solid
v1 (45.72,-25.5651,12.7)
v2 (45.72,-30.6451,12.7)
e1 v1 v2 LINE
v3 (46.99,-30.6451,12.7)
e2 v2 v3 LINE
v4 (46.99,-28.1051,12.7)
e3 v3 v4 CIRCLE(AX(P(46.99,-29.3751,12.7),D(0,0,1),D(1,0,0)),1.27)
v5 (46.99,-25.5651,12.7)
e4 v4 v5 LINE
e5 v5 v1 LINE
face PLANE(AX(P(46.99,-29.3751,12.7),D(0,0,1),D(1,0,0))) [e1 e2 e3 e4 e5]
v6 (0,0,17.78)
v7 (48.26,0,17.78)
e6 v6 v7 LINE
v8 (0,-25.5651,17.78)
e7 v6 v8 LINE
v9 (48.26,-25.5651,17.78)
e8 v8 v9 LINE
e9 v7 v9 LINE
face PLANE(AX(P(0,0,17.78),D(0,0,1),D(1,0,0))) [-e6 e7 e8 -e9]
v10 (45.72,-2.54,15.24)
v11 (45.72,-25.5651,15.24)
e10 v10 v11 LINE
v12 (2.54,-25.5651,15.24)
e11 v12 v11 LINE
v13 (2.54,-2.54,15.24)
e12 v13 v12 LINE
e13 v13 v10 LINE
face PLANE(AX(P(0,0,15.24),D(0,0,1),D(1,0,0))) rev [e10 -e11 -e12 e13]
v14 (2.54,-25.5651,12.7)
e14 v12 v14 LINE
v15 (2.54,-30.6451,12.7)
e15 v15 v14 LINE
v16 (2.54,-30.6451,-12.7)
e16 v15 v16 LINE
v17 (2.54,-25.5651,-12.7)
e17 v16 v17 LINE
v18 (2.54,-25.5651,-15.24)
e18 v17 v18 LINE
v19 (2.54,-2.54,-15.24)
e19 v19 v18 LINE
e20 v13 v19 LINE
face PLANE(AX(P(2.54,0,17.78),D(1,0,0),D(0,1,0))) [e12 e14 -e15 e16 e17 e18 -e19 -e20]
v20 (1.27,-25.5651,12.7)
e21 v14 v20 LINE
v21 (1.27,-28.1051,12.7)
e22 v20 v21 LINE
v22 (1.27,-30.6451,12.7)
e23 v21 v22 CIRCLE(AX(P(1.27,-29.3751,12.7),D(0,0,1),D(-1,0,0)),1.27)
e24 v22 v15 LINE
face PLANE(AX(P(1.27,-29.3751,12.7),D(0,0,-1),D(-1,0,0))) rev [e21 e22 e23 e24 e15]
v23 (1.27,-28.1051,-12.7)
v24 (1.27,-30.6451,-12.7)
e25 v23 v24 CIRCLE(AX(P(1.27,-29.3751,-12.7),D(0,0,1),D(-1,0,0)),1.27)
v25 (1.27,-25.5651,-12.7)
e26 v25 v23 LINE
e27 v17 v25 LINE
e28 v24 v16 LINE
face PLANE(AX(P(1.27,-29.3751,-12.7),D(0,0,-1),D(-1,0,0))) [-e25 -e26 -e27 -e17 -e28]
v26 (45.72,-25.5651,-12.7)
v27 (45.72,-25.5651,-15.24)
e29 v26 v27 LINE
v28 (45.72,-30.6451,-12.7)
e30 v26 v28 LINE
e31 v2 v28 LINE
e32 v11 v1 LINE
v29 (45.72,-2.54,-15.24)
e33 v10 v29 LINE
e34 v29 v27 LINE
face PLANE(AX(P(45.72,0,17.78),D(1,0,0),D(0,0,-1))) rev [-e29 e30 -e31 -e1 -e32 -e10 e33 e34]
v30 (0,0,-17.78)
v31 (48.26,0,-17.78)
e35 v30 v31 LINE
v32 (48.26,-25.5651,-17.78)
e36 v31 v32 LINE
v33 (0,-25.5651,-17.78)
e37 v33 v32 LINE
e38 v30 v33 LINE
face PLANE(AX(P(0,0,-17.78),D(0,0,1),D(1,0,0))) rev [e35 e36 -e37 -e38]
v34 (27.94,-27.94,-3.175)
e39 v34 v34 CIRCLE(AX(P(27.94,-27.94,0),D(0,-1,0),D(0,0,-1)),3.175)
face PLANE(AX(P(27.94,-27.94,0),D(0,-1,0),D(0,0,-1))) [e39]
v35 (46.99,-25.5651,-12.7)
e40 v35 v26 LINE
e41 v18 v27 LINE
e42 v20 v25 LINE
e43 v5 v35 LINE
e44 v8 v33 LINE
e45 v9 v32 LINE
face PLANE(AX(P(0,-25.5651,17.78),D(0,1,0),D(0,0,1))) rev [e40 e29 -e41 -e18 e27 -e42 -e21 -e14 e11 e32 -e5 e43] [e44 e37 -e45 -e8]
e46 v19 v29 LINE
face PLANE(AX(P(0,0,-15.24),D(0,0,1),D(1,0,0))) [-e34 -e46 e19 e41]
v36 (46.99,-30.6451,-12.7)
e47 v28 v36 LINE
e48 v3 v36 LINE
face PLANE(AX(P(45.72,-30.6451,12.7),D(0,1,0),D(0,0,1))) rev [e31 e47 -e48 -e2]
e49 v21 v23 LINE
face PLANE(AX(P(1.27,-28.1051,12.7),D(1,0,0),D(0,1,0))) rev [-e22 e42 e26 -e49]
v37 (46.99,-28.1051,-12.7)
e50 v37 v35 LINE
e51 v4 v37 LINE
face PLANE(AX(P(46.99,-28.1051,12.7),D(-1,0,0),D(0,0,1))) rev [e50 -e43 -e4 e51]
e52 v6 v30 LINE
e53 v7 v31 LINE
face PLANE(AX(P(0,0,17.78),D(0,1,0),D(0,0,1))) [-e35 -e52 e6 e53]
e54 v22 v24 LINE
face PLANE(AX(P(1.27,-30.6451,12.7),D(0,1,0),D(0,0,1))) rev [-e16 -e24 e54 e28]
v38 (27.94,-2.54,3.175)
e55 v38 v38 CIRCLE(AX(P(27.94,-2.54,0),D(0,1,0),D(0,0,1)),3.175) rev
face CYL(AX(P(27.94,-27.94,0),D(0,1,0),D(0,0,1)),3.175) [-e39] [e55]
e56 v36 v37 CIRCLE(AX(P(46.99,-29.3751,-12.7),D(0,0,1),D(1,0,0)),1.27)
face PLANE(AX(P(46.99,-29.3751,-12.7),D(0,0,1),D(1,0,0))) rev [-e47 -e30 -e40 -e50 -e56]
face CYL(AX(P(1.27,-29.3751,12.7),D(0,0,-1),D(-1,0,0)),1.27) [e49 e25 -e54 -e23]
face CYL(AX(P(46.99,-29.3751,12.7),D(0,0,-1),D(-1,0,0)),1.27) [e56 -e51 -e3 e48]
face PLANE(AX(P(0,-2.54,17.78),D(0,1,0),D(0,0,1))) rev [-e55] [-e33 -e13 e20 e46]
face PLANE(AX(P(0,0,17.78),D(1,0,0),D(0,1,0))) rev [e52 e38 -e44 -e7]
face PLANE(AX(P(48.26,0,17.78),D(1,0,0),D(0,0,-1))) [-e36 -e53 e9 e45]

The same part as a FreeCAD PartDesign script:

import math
import FreeCAD as App
import Part
import Sketcher
from FreeCAD import Vector
Q = App.Units.Quantity


def faces_at(feature, points):
    """Names of the faces that lie closest to the given points."""
    faces = feature.Shape.Faces
    near = lambda p: min(range(len(faces)), key=lambda i: faces[i].distToShape(Part.Vertex(*p))[0])
    return sorted({f"Face{near(p) + 1}" for p in points})

doc = App.newDocument("Part")
body = doc.addObject("PartDesign::Body", "Body")

sketch1 = doc.addObject("Sketcher::SketchObject", "Sketch")
body.addObject(sketch1)
sketch1.AttachmentSupport = (doc.XY_Plane, [""])
sketch1.MapMode = "FlatFace"
sketch1.addGeometry(Part.LineSegment(Vector(0, 0, 0), Vector(0, -25.5651, 0)), False)
sketch1.addGeometry(Part.LineSegment(Vector(0, -25.5651, 0), Vector(48.26, -25.5651, 0)), False)
sketch1.addGeometry(Part.LineSegment(Vector(48.26, -25.5651, 0), Vector(48.26, 0, 0)), False)
sketch1.addGeometry(Part.LineSegment(Vector(48.26, 0, 0), Vector(0, 0, 0)), False)
sketch1.addConstraint(Sketcher.Constraint("Coincident", 0, 2, 1, 1))
sketch1.addConstraint(Sketcher.Constraint("Coincident", 1, 2, 2, 1))
sketch1.addConstraint(Sketcher.Constraint("Coincident", 2, 2, 3, 1))
sketch1.addConstraint(Sketcher.Constraint("Coincident", 3, 2, 0, 1))
sketch1.addConstraint(Sketcher.Constraint("Vertical", 0))
sketch1.addConstraint(Sketcher.Constraint("Horizontal", 1))
sketch1.addConstraint(Sketcher.Constraint("Vertical", 2))
sketch1.addConstraint(Sketcher.Constraint("Horizontal", 3))
sketch1.addConstraint(Sketcher.Constraint("Coincident", 3, 2, -1, 1))
sketch1.addConstraint(Sketcher.Constraint("DistanceX", 1, 1, 1, 2, Q("1.9 in")))
sketch1.addConstraint(Sketcher.Constraint("DistanceY", 0, 2, 0, 1, Q("1.0065 in")))
pad1 = doc.addObject("PartDesign::Pad", "Pad")
body.addObject(pad1)
pad1.Profile = sketch1
pad1.Length = Q("1.4 in")
pad1.Midplane = True
doc.recompute()

thickness = doc.addObject("PartDesign::Thickness", "Thickness")
body.addObject(thickness)
thickness.Base = (pad1, faces_at(pad1, [(24.13, -25.565, 0)]))
thickness.Value = Q("0.1 in")
thickness.Reversed = True
thickness.Join = "Intersection"

sketch2 = doc.addObject("Sketcher::SketchObject", "Sketch001")
body.addObject(sketch2)
sketch2.AttachmentSupport = (doc.XZ_Plane, [""])
sketch2.MapMode = "FlatFace"
sketch2.AttachmentOffset = App.Placement(Vector(0, 0, 0.1 * 25.4), App.Rotation())
sketch2.addGeometry(Part.Circle(Vector(27.94, 0, 0), Vector(0, 0, 1), 3.175), False)
sketch2.addConstraint(Sketcher.Constraint("PointOnObject", 0, 3, -1))
sketch2.addConstraint(Sketcher.Constraint("Diameter", 0, Q("0.25 in")))
sketch2.addConstraint(Sketcher.Constraint("DistanceX", -1, 1, 0, 3, Q("1.1 in")))
pad2 = doc.addObject("PartDesign::Pad", "Pad001")
body.addObject(pad2)
pad2.Profile = sketch2
pad2.Length = Q("1 in")

sketch3 = doc.addObject("Sketcher::SketchObject", "Sketch002")
body.addObject(sketch3)
sketch3.AttachmentSupport = (doc.XY_Plane, [""])
sketch3.MapMode = "FlatFace"
sketch3.addGeometry(Part.LineSegment(Vector(2.54, -25.5651, 0), Vector(1.27, -25.5651, 0)), False)
sketch3.addGeometry(Part.LineSegment(Vector(1.27, -25.5651, 0), Vector(1.27, -28.1051, 0)), False)
sketch3.addGeometry(Part.ArcOfCircle(Part.Circle(Vector(1.27, -29.3751, 0), Vector(0, 0, 1), 1.27), math.radians(90), math.radians(270)), False)
sketch3.addGeometry(Part.LineSegment(Vector(1.27, -30.6451, 0), Vector(2.54, -30.6451, 0)), False)
sketch3.addGeometry(Part.LineSegment(Vector(2.54, -30.6451, 0), Vector(2.54, -25.5651, 0)), False)
sketch3.addGeometry(Part.LineSegment(Vector(45.72, -25.5651, 0), Vector(45.72, -30.6451, 0)), False)
sketch3.addGeometry(Part.LineSegment(Vector(45.72, -30.6451, 0), Vector(46.99, -30.6451, 0)), False)
sketch3.addGeometry(Part.ArcOfCircle(Part.Circle(Vector(46.99, -29.3751, 0), Vector(0, 0, 1), 1.27), math.radians(-90), math.radians(90)), False)
sketch3.addGeometry(Part.LineSegment(Vector(46.99, -28.1051, 0), Vector(46.99, -25.5651, 0)), False)
sketch3.addGeometry(Part.LineSegment(Vector(46.99, -25.5651, 0), Vector(45.72, -25.5651, 0)), False)
sketch3.addConstraint(Sketcher.Constraint("Coincident", 0, 2, 1, 1))
sketch3.addConstraint(Sketcher.Constraint("Coincident", 1, 2, 2, 1))
sketch3.addConstraint(Sketcher.Constraint("Tangent", 2, 2, 3, 1))
sketch3.addConstraint(Sketcher.Constraint("Coincident", 3, 2, 4, 1))
sketch3.addConstraint(Sketcher.Constraint("Coincident", 4, 2, 0, 1))
sketch3.addConstraint(Sketcher.Constraint("Coincident", 5, 2, 6, 1))
sketch3.addConstraint(Sketcher.Constraint("Tangent", 6, 2, 7, 1))
sketch3.addConstraint(Sketcher.Constraint("Coincident", 7, 2, 8, 1))
sketch3.addConstraint(Sketcher.Constraint("Coincident", 8, 2, 9, 1))
sketch3.addConstraint(Sketcher.Constraint("Coincident", 9, 2, 5, 1))
sketch3.addConstraint(Sketcher.Constraint("Horizontal", 0))
sketch3.addConstraint(Sketcher.Constraint("Vertical", 1))
sketch3.addConstraint(Sketcher.Constraint("Horizontal", 3))
sketch3.addConstraint(Sketcher.Constraint("Vertical", 4))
sketch3.addConstraint(Sketcher.Constraint("Vertical", 5))
sketch3.addConstraint(Sketcher.Constraint("Horizontal", 6))
sketch3.addConstraint(Sketcher.Constraint("Vertical", 8))
sketch3.addConstraint(Sketcher.Constraint("Horizontal", 9))
sketch3.addConstraint(Sketcher.Constraint("Equal", 2, 7))
sketch3.addConstraint(Sketcher.Constraint("Horizontal", 2, 3, 7, 3))
sketch3.addConstraint(Sketcher.Constraint("Horizontal", 4, 2, 8, 2))
sketch3.addConstraint(Sketcher.Constraint("Vertical", 2, 3, 0, 2))
sketch3.addConstraint(Sketcher.Constraint("Vertical", 6, 2, 7, 2))
sketch3.addConstraint(Sketcher.Constraint("Equal", 3, 6))
sketch3.addConstraint(Sketcher.Constraint("Radius", 2, Q("0.05 in")))
sketch3.addConstraint(Sketcher.Constraint("DistanceY", 1, 2, 1, 1, Q("0.1 in")))
sketch3.addConstraint(Sketcher.Constraint("DistanceX", 0, 2, 0, 1, Q("0.05 in")))
sketch3.addConstraint(Sketcher.Constraint("DistanceX", -1, 1, 3, 2, Q("0.1 in")))
sketch3.addConstraint(Sketcher.Constraint("DistanceX", -1, 1, 5, 2, Q("1.8 in")))
sketch3.addConstraint(Sketcher.Constraint("DistanceY", 2, 3, -1, 1, Q("1.1565 in")))
pad3 = doc.addObject("PartDesign::Pad", "Pad002")
body.addObject(pad3)
pad3.Profile = sketch3
pad3.Length = Q("1 in")
pad3.Midplane = True

doc.recompute()
